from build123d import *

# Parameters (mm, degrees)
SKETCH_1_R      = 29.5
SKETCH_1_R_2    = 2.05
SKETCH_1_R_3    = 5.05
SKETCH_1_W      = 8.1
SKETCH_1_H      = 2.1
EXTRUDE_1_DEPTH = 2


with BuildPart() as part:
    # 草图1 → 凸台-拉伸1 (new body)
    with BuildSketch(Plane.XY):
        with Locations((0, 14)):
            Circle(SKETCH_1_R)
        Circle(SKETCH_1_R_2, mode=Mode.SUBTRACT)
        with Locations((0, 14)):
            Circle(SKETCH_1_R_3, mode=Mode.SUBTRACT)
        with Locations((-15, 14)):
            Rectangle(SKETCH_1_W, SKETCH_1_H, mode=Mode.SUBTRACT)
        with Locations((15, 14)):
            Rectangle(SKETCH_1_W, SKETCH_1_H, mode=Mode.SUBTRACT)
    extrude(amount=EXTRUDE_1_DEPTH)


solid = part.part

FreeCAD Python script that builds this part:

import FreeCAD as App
import Part
import Sketcher


def add_polygon(sketch, points):
    """Adds a closed chain of lines whose ends are joined by coincident constraints."""
    first, n = sketch.GeometryCount, len(points)
    for a, b in zip(points, points[1:] + points[:1]):
        sketch.addGeometry(Part.LineSegment(App.Vector(*a, 0), App.Vector(*b, 0)), False)
    for i in range(n):
        sketch.addConstraint(Sketcher.Constraint("Coincident", first + i, 2, first + (i + 1) % n, 1))

doc = App.newDocument("Part")
body = doc.addObject("PartDesign::Body", "Body")

sketch1 = doc.addObject("Sketcher::SketchObject", "Sketch")
body.addObject(sketch1)
sketch1.AttachmentSupport = (doc.XY_Plane, [""])
sketch1.MapMode = "FlatFace"
sketch1.addGeometry(Part.Circle(App.Vector(0, 14, 0), App.Vector(0, 0, 1), 29.5), False)
sketch1.addGeometry(Part.Circle(App.Vector(0, 0, 0), App.Vector(0, 0, 1), 2.05), False)
add_polygon(sketch1, [(-10.95, 12.95), (-19.05, 12.95), (-19.05, 15.05), (-10.95, 15.05)])
sketch1.addGeometry(Part.Circle(App.Vector(0, 14, 0), App.Vector(0, 0, 1), 5.05), False)
add_polygon(sketch1, [(19.05, 12.95), (10.95, 12.95), (10.95, 15.05), (19.05, 15.05)])
sketch1.addConstraint([
    Sketcher.Constraint("Horizontal", 2),
    Sketcher.Constraint("Vertical", 3),
    Sketcher.Constraint("Horizontal", 4),
    Sketcher.Constraint("Vertical", 5),
    Sketcher.Constraint("Horizontal", 7),
    Sketcher.Constraint("Vertical", 8),
    Sketcher.Constraint("Horizontal", 9),
    Sketcher.Constraint("Vertical", 10),
    Sketcher.Constraint("Coincident", 1, 3, -1, 1),
    Sketcher.Constraint("Coincident", 6, 3, 0, 3),
    Sketcher.Constraint("Symmetric", 5, 2, 7, 2, -2),
    Sketcher.Constraint("Symmetric", 3, 2, 9, 2, -2),
    Sketcher.Constraint("PointOnObject", 0, 3, -2),
    Sketcher.Constraint("Diameter", 0, 59.0),
    Sketcher.Constraint("Diameter", 1, 4.1),
    Sketcher.Constraint("Diameter", 6, 10.1),
    Sketcher.Constraint("DistanceX", 2, 2, 2, 1, 8.1),
    Sketcher.Constraint("DistanceY", 3, 1, 3, 2, 2.1),
    Sketcher.Constraint("DistanceY", -1, 1, 0, 3, 14.0),
    Sketcher.Constraint("DistanceX", 5, 2, 7, 2, 21.9),
    Sketcher.Constraint("DistanceY", -1, 1, 2, 2, 12.95),
])
pad1 = doc.addObject("PartDesign::Pad", "Pad")
body.addObject(pad1)
pad1.Profile = sketch1
pad1.Length = 2

doc.recompute()
